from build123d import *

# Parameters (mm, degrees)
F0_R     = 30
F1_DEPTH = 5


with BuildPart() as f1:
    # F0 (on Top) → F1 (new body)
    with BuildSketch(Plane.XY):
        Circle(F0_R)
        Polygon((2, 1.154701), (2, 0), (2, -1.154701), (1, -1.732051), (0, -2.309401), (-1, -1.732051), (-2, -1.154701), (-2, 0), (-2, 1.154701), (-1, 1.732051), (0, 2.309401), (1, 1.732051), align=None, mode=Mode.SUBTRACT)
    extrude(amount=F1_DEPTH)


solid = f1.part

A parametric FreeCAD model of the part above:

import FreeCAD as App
import Part
import Sketcher
from FreeCAD import Vector
Q = App.Units.Quantity


def add_polygon(sketch, points):
    """Adds a closed chain of lines whose ends are joined by coincident constraints."""
    first, n = sketch.GeometryCount, len(points)
    for a, b in zip(points, points[1:] + points[:1]):
        sketch.addGeometry(Part.LineSegment(App.Vector(*a, 0), App.Vector(*b, 0)), False)
    for i in range(n):
        sketch.addConstraint(Sketcher.Constraint("Coincident", first + i, 2, first + (i + 1) % n, 1))

doc = App.newDocument("Part")
body = doc.addObject("PartDesign::Body", "Body")

# Sketch on XY plane
sketch1 = body.newObject("Sketcher::SketchObject", "Sketch")
sketch1.AttachmentSupport = (doc.getObject("XY_Plane"), [""])
sketch1.MapMode = "FlatFace"
sketch1.addGeometry(Part.Circle(Vector(0, 0, 0), Vector(0, 0, 1), 30), False)  # 0
add_polygon(sketch1, [(0, 2.3), (2, 1.2), (2, -1.2), (0, -2.3), (-2, -1.2), (-2, 1.2)])  # lines 1-6
sketch1.addConstraint([
    Sketcher.Constraint("Vertical", 2),
    Sketcher.Constraint("Vertical", 5),
    Sketcher.Constraint("Coincident", 0, 3, -1, 1),
    Sketcher.Constraint("Symmetric", 1, 2, 4, 2, -1, 1),
    Sketcher.Constraint("Symmetric", 3, 2, 6, 2, -1, 1),
    Sketcher.Constraint("PointOnObject", 3, 2, -2),
    Sketcher.Constraint("Parallel", 3, 6),
    Sketcher.Constraint("Horizontal", 2, 2, 4, 2),
    Sketcher.Constraint("Diameter", 0, 60.0),
    Sketcher.Constraint("Angle", 1, Q("-29.999988 deg")),
    Sketcher.Constraint("DistanceX", -1, 1, 1, 2, 2.0),
    Sketcher.Constraint("DistanceY", 2, 2, 2, 1, 2.309402),
])
pad1 = body.newObject("PartDesign::Pad", "Pad")
pad1.Profile = sketch1
pad1.Length = 5

doc.recompute()
